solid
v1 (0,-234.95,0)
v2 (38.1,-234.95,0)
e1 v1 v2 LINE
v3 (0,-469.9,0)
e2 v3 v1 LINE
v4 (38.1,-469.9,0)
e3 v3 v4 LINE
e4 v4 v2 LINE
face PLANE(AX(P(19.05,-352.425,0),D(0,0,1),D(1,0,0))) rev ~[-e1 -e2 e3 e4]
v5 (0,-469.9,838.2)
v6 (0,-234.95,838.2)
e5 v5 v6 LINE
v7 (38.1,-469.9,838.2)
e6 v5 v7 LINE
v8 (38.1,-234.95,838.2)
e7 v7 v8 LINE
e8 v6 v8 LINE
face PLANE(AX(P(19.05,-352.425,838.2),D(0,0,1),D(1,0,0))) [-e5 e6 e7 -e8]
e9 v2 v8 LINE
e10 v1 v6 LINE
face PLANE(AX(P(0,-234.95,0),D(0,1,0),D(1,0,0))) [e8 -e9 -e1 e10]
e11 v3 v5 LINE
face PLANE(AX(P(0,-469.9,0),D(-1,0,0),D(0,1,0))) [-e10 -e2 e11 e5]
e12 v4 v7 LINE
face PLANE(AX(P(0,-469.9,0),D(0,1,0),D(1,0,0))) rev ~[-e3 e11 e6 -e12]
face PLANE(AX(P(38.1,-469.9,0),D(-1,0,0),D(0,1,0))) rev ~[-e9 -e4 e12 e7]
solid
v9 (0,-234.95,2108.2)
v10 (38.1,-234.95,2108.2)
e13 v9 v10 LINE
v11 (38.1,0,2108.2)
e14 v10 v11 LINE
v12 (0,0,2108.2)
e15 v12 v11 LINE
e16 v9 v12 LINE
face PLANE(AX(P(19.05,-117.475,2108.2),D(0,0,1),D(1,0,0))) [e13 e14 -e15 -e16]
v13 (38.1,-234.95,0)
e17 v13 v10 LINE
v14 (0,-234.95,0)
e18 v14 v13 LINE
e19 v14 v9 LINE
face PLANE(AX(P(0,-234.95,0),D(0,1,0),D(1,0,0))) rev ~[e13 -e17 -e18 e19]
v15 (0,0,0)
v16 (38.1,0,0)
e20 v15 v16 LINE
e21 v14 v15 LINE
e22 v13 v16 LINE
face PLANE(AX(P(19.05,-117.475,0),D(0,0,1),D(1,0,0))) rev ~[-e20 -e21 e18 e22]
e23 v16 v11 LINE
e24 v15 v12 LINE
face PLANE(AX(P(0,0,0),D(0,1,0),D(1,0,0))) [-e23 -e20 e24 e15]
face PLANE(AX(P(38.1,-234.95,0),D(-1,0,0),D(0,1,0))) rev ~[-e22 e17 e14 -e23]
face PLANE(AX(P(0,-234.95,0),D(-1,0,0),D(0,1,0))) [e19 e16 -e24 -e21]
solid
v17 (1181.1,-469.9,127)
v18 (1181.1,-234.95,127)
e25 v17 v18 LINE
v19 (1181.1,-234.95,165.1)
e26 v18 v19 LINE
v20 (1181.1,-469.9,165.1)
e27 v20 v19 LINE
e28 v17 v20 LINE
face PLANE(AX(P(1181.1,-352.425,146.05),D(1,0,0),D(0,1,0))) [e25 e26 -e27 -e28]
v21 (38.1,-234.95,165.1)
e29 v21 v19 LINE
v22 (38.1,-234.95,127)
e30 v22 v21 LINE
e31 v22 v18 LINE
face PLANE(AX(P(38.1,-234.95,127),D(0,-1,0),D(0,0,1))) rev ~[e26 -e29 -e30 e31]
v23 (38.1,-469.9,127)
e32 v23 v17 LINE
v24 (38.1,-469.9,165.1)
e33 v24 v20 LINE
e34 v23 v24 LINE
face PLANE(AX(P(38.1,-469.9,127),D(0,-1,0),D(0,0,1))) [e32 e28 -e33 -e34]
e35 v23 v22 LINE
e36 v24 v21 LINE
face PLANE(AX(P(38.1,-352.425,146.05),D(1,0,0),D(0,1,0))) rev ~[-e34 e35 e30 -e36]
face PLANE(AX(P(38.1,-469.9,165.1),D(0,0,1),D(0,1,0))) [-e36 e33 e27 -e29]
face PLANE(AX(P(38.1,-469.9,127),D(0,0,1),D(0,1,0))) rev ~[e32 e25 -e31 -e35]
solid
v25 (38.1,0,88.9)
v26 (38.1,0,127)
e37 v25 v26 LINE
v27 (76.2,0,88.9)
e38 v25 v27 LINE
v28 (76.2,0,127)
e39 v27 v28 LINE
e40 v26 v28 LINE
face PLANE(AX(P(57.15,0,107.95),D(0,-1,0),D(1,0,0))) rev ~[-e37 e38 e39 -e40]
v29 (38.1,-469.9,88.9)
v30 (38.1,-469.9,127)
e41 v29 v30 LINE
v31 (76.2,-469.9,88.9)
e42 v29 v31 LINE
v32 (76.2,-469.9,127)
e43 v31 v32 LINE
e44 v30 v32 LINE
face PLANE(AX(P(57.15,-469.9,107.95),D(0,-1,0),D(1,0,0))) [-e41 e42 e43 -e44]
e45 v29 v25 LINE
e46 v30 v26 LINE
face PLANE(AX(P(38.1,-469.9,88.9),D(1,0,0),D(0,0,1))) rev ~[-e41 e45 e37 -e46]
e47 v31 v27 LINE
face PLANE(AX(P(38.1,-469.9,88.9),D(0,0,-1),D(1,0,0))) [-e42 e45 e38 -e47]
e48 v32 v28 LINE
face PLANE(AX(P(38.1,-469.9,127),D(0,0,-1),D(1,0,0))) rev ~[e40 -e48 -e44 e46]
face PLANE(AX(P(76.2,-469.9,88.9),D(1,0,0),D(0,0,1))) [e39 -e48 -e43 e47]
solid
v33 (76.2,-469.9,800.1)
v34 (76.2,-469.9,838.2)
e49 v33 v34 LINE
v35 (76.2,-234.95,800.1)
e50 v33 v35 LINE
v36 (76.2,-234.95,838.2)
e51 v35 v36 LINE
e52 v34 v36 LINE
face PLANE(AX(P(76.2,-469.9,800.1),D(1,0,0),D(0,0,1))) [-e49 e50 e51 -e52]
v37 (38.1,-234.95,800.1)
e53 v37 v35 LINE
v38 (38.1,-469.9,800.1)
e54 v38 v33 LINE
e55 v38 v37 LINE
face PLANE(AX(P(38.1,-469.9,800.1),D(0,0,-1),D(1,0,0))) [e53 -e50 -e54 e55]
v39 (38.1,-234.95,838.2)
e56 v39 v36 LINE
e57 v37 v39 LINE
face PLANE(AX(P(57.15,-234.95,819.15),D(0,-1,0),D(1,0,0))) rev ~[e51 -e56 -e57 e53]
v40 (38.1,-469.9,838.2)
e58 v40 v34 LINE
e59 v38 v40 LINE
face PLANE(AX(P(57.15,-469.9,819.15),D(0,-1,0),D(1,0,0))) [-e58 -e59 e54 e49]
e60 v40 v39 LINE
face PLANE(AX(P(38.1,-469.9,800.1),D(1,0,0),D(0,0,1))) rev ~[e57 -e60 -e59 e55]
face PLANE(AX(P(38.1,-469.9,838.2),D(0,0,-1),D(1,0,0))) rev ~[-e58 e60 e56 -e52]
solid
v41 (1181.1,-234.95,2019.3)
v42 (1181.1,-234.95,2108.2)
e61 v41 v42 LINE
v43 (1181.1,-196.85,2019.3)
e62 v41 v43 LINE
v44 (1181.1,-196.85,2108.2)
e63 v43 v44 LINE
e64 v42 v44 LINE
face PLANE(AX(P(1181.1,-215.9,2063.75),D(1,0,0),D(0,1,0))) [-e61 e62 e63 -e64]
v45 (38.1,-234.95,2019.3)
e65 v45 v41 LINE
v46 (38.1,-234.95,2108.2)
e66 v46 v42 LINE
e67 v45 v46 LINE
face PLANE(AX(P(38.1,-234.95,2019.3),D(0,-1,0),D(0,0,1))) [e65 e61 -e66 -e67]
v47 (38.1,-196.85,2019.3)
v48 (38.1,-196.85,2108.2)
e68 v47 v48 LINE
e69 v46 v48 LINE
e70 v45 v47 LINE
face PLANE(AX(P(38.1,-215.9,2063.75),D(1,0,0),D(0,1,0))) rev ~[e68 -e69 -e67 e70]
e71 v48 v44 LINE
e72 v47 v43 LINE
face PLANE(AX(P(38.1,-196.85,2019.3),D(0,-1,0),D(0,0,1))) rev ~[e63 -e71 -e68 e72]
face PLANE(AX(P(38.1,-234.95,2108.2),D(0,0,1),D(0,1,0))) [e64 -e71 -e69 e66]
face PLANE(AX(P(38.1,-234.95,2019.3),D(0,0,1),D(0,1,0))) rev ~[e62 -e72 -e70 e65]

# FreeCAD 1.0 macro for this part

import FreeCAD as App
import Part
import Sketcher
Q = App.Units.Quantity


def add_polygon(sketch, points):
    """Adds a closed chain of lines whose ends are joined by coincident constraints."""
    first, n = sketch.GeometryCount, len(points)
    for a, b in zip(points, points[1:] + points[:1]):
        sketch.addGeometry(Part.LineSegment(App.Vector(*a, 0), App.Vector(*b, 0)), False)
    for i in range(n):
        sketch.addConstraint(Sketcher.Constraint("Coincident", first + i, 2, first + (i + 1) % n, 1))

doc = App.newDocument("Part")
body = doc.addObject("PartDesign::Body", "Body")

# Sketch on XY plane
sketch1 = doc.addObject("Sketcher::SketchObject", "Sketch")
body.addObject(sketch1)
sketch1.AttachmentSupport = (doc.XY_Plane, [""])
sketch1.MapMode = "FlatFace"
add_polygon(sketch1, [(0, 0), (0, -235), (38, -235), (38, 0)])  # lines 0-3
sketch1.addConstraint(Sketcher.Constraint("Vertical", 0))
sketch1.addConstraint(Sketcher.Constraint("Horizontal", 1))
sketch1.addConstraint(Sketcher.Constraint("Vertical", 2))
sketch1.addConstraint(Sketcher.Constraint("Horizontal", 3))
sketch1.addConstraint(Sketcher.Constraint("Coincident", 3, 2, -1, 1))
sketch1.addConstraint(Sketcher.Constraint("DistanceX", 1, 1, 1, 2, Q("1.5 in")))
sketch1.addConstraint(Sketcher.Constraint("DistanceY", 0, 2, 0, 1, Q("9.25 in")))
pad1 = doc.addObject("PartDesign::Pad", "Pad")
body.addObject(pad1)
pad1.Profile = sketch1
pad1.Length = Q("83 in")
body2 = doc.addObject("PartDesign::Body", "Body001")

# Sketch on XY plane
sketch2 = doc.addObject("Sketcher::SketchObject", "Sketch001")
body2.addObject(sketch2)
sketch2.AttachmentSupport = (doc.getObject("XY_Plane001"), [""])
sketch2.MapMode = "FlatFace"
add_polygon(sketch2, [(0, -235), (0, -470), (38, -470), (38, -235)])  # lines 0-3
sketch2.addConstraint(Sketcher.Constraint("Vertical", 0))
sketch2.addConstraint(Sketcher.Constraint("Horizontal", 1))
sketch2.addConstraint(Sketcher.Constraint("Vertical", 2))
sketch2.addConstraint(Sketcher.Constraint("Horizontal", 3))
sketch2.addConstraint(Sketcher.Constraint("PointOnObject", 0, 2, -2))
sketch2.addConstraint(Sketcher.Constraint("DistanceX", 1, 1, 1, 2, Q("1.5 in")))
sketch2.addConstraint(Sketcher.Constraint("DistanceY", 0, 2, 0, 1, Q("9.25 in")))
sketch2.addConstraint(Sketcher.Constraint("DistanceY", 0, 2, -1, 1, Q("18.5 in")))
pad2 = doc.addObject("PartDesign::Pad", "Pad001")
body2.addObject(pad2)
pad2.Profile = sketch2
pad2.Length = Q("33 in")
body3 = doc.addObject("PartDesign::Body", "Body002")

# Sketch on YZ plane
sketch3 = doc.addObject("Sketcher::SketchObject", "Sketch002")
body3.addObject(sketch3)
sketch3.AttachmentSupport = (doc.getObject("YZ_Plane002"), [""])
sketch3.MapMode = "FlatFace"
sketch3.AttachmentOffset = App.Placement(App.Vector(0, 0, 1.5 * 25.4), App.Rotation())
add_polygon(sketch3, [(-470, 165), (-470, 127), (-235, 127), (-235, 165)])  # lines 0-3
sketch3.addConstraint(Sketcher.Constraint("Vertical", 0))
sketch3.addConstraint(Sketcher.Constraint("Horizontal", 1))
sketch3.addConstraint(Sketcher.Constraint("Vertical", 2))
sketch3.addConstraint(Sketcher.Constraint("Horizontal", 3))
sketch3.addConstraint(Sketcher.Constraint("DistanceY", 0, 2, 0, 1, Q("1.5 in")))
sketch3.addConstraint(Sketcher.Constraint("DistanceY", -1, 1, 0, 2, Q("5 in")))
sketch3.addConstraint(Sketcher.Constraint("DistanceX", 1, 1, 1, 2, Q("9.25 in")))
sketch3.addConstraint(Sketcher.Constraint("DistanceX", 0, 2, -1, 1, Q("18.5 in")))
pad3 = doc.addObject("PartDesign::Pad", "Pad002")
body3.addObject(pad3)
pad3.Profile = sketch3
pad3.Length = Q("45 in")
body4 = doc.addObject("PartDesign::Body", "Body003")

# Sketch on YZ plane
sketch4 = doc.addObject("Sketcher::SketchObject", "Sketch003")
body4.addObject(sketch4)
sketch4.AttachmentSupport = (doc.getObject("YZ_Plane003"), [""])
sketch4.MapMode = "FlatFace"
sketch4.AttachmentOffset = App.Placement(App.Vector(0, 0, 1.5 * 25.4), App.Rotation())
add_polygon(sketch4, [(-235, 2108), (-235, 2019), (-197, 2019), (-197, 2108)])  # lines 0-3
sketch4.addConstraint(Sketcher.Constraint("Vertical", 0))
sketch4.addConstraint(Sketcher.Constraint("Horizontal", 1))
sketch4.addConstraint(Sketcher.Constraint("Vertical", 2))
sketch4.addConstraint(Sketcher.Constraint("Horizontal", 3))
sketch4.addConstraint(Sketcher.Constraint("DistanceX", 1, 1, 1, 2, Q("1.5 in")))
sketch4.addConstraint(Sketcher.Constraint("DistanceY", 0, 2, 0, 1, Q("3.5 in")))
sketch4.addConstraint(Sketcher.Constraint("DistanceY", -1, 1, 2, 2, Q("83 in")))
sketch4.addConstraint(Sketcher.Constraint("DistanceX", 0, 2, -1, 1, Q("9.25 in")))
pad4 = doc.addObject("PartDesign::Pad", "Pad003")
body4.addObject(pad4)
pad4.Profile = sketch4
pad4.Length = Q("45 in")
body5 = doc.addObject("PartDesign::Body", "Body004")

# Sketch on XZ plane
sketch5 = doc.addObject("Sketcher::SketchObject", "Sketch004")
body5.addObject(sketch5)
sketch5.AttachmentSupport = (doc.getObject("XZ_Plane004"), [""])
sketch5.MapMode = "FlatFace"
sketch5.AttachmentOffset = App.Placement(App.Vector(0, 0, 18.5 * 25.4), App.Rotation())
add_polygon(sketch5, [(38, 127), (38, 89), (76, 89), (76, 127)])  # lines 0-3
sketch5.addConstraint(Sketcher.Constraint("Vertical", 0))
sketch5.addConstraint(Sketcher.Constraint("Horizontal", 1))
sketch5.addConstraint(Sketcher.Constraint("Vertical", 2))
sketch5.addConstraint(Sketcher.Constraint("Horizontal", 3))
sketch5.addConstraint(Sketcher.Constraint("Equal", 3, 0))
sketch5.addConstraint(Sketcher.Constraint("DistanceX", 1, 1, 1, 2, Q("1.5 in")))
sketch5.addConstraint(Sketcher.Constraint("DistanceX", -1, 1, 1, 2, Q("3 in")))
sketch5.addConstraint(Sketcher.Constraint("DistanceY", -1, 1, 2, 2, Q("5 in")))
pad5 = doc.addObject("PartDesign::Pad", "Pad004")
body5.addObject(pad5)
pad5.Profile = sketch5
pad5.Length = Q("18.5 in")
pad5.Reversed = True
body6 = doc.addObject("PartDesign::Body", "Body005")

# Sketch on XZ plane
sketch6 = doc.addObject("Sketcher::SketchObject", "Sketch005")
body6.addObject(sketch6)
sketch6.AttachmentSupport = (doc.getObject("XZ_Plane005"), [""])
sketch6.MapMode = "FlatFace"
sketch6.AttachmentOffset = App.Placement(App.Vector(0, 0, 18.5 * 25.4), App.Rotation())
add_polygon(sketch6, [(38, 838), (38, 800), (76, 800), (76, 838)])  # lines 0-3
sketch6.addConstraint(Sketcher.Constraint("Vertical", 0))
sketch6.addConstraint(Sketcher.Constraint("Horizontal", 1))
sketch6.addConstraint(Sketcher.Constraint("Vertical", 2))
sketch6.addConstraint(Sketcher.Constraint("Horizontal", 3))
sketch6.addConstraint(Sketcher.Constraint("Equal", 3, 0))
sketch6.addConstraint(Sketcher.Constraint("DistanceX", 1, 1, 1, 2, Q("1.5 in")))
sketch6.addConstraint(Sketcher.Constraint("DistanceX", -1, 1, 1, 2, Q("3 in")))
sketch6.addConstraint(Sketcher.Constraint("DistanceY", -1, 1, 2, 2, Q("33 in")))
pad6 = doc.addObject("PartDesign::Pad", "Pad005")
body6.addObject(pad6)
pad6.Profile = sketch6
pad6.Length = Q("9.25 in")
pad6.Reversed = True

doc.recompute()
